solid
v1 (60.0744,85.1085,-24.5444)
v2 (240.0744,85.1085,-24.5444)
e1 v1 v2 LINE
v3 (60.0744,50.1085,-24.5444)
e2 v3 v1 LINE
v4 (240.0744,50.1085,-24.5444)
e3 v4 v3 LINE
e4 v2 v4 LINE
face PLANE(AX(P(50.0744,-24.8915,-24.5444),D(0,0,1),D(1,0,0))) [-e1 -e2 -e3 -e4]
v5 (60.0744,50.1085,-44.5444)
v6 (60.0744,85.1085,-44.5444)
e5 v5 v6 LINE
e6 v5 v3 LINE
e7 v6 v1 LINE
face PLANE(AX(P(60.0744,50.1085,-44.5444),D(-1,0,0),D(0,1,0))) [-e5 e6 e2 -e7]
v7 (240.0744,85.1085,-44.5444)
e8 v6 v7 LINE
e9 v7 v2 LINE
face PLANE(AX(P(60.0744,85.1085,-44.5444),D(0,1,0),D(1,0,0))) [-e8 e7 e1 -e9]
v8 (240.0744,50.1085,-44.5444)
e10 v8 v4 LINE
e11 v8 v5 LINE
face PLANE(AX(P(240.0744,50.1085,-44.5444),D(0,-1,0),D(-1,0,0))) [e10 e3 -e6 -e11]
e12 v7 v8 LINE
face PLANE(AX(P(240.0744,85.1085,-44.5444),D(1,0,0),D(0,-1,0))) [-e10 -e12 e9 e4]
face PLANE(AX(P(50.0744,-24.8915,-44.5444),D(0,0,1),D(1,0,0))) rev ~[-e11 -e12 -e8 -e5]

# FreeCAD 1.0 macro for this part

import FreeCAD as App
import Part
import Sketcher

V = App.Vector
Q = App.Units.Quantity


def add_polygon(sketch, points):
    """Adds a closed chain of lines whose ends are joined by coincident constraints."""
    first, n = sketch.GeometryCount, len(points)
    for a, b in zip(points, points[1:] + points[:1]):
        sketch.addGeometry(Part.LineSegment(App.Vector(*a, 0), App.Vector(*b, 0)), False)
    for i in range(n):
        sketch.addConstraint(Sketcher.Constraint("Coincident", first + i, 2, first + (i + 1) % n, 1))

doc = App.newDocument("Part")
params = doc.addObject("Spreadsheet::Sheet", "Params")
for row, (alias, value) in enumerate([
    ("sketch1_width", "180 mm"),
    ("sketch1_height", "35 mm"),
    ("pad1_length", "20 mm"),
], start=1):
    params.set(f"A{row}", alias)
    params.set(f"B{row}", "=" + value)
    params.setAlias(f"B{row}", alias)

body = doc.addObject("PartDesign::Body", "Body")

# Sketch on XY plane
sketch1 = body.newObject("Sketcher::SketchObject", "Sketch")
sketch1.AttachmentSupport = (doc.getObject("XY_Plane"), [""])
sketch1.MapMode = "FlatFace"
sketch1.AttachmentOffset = App.Placement(V(0, 0, -44.5444), App.Rotation())
add_polygon(sketch1, [(240.0744, 85.1085), (60.0744, 85.1085), (60.0744, 50.1085), (240.0744, 50.1085)])  # lines 0-3
sketch1.addConstraint([
    Sketcher.Constraint("Horizontal", 0),
    Sketcher.Constraint("Vertical", 1),
    Sketcher.Constraint("Horizontal", 2),
    Sketcher.Constraint("Vertical", 3),
    Sketcher.Constraint("DistanceX", 0, 2, 0, 1, Q("180 mm")),
    Sketcher.Constraint("DistanceY", 1, 2, 1, 1, Q("35 mm")),
    Sketcher.Constraint("DistanceX", -1, 1, 0, 2, Q("60.0744 mm")),
    Sketcher.Constraint("DistanceY", -1, 1, 0, 2, Q("85.1085 mm")),
])
sketch1.setExpression("Constraints[8]", "Params.sketch1_width")
sketch1.setExpression("Constraints[9]", "Params.sketch1_height")
pad1 = body.newObject("PartDesign::Pad", "Pad")
pad1.Profile = sketch1
pad1.setExpression("Length", "Params.pad1_length")

doc.recompute()
